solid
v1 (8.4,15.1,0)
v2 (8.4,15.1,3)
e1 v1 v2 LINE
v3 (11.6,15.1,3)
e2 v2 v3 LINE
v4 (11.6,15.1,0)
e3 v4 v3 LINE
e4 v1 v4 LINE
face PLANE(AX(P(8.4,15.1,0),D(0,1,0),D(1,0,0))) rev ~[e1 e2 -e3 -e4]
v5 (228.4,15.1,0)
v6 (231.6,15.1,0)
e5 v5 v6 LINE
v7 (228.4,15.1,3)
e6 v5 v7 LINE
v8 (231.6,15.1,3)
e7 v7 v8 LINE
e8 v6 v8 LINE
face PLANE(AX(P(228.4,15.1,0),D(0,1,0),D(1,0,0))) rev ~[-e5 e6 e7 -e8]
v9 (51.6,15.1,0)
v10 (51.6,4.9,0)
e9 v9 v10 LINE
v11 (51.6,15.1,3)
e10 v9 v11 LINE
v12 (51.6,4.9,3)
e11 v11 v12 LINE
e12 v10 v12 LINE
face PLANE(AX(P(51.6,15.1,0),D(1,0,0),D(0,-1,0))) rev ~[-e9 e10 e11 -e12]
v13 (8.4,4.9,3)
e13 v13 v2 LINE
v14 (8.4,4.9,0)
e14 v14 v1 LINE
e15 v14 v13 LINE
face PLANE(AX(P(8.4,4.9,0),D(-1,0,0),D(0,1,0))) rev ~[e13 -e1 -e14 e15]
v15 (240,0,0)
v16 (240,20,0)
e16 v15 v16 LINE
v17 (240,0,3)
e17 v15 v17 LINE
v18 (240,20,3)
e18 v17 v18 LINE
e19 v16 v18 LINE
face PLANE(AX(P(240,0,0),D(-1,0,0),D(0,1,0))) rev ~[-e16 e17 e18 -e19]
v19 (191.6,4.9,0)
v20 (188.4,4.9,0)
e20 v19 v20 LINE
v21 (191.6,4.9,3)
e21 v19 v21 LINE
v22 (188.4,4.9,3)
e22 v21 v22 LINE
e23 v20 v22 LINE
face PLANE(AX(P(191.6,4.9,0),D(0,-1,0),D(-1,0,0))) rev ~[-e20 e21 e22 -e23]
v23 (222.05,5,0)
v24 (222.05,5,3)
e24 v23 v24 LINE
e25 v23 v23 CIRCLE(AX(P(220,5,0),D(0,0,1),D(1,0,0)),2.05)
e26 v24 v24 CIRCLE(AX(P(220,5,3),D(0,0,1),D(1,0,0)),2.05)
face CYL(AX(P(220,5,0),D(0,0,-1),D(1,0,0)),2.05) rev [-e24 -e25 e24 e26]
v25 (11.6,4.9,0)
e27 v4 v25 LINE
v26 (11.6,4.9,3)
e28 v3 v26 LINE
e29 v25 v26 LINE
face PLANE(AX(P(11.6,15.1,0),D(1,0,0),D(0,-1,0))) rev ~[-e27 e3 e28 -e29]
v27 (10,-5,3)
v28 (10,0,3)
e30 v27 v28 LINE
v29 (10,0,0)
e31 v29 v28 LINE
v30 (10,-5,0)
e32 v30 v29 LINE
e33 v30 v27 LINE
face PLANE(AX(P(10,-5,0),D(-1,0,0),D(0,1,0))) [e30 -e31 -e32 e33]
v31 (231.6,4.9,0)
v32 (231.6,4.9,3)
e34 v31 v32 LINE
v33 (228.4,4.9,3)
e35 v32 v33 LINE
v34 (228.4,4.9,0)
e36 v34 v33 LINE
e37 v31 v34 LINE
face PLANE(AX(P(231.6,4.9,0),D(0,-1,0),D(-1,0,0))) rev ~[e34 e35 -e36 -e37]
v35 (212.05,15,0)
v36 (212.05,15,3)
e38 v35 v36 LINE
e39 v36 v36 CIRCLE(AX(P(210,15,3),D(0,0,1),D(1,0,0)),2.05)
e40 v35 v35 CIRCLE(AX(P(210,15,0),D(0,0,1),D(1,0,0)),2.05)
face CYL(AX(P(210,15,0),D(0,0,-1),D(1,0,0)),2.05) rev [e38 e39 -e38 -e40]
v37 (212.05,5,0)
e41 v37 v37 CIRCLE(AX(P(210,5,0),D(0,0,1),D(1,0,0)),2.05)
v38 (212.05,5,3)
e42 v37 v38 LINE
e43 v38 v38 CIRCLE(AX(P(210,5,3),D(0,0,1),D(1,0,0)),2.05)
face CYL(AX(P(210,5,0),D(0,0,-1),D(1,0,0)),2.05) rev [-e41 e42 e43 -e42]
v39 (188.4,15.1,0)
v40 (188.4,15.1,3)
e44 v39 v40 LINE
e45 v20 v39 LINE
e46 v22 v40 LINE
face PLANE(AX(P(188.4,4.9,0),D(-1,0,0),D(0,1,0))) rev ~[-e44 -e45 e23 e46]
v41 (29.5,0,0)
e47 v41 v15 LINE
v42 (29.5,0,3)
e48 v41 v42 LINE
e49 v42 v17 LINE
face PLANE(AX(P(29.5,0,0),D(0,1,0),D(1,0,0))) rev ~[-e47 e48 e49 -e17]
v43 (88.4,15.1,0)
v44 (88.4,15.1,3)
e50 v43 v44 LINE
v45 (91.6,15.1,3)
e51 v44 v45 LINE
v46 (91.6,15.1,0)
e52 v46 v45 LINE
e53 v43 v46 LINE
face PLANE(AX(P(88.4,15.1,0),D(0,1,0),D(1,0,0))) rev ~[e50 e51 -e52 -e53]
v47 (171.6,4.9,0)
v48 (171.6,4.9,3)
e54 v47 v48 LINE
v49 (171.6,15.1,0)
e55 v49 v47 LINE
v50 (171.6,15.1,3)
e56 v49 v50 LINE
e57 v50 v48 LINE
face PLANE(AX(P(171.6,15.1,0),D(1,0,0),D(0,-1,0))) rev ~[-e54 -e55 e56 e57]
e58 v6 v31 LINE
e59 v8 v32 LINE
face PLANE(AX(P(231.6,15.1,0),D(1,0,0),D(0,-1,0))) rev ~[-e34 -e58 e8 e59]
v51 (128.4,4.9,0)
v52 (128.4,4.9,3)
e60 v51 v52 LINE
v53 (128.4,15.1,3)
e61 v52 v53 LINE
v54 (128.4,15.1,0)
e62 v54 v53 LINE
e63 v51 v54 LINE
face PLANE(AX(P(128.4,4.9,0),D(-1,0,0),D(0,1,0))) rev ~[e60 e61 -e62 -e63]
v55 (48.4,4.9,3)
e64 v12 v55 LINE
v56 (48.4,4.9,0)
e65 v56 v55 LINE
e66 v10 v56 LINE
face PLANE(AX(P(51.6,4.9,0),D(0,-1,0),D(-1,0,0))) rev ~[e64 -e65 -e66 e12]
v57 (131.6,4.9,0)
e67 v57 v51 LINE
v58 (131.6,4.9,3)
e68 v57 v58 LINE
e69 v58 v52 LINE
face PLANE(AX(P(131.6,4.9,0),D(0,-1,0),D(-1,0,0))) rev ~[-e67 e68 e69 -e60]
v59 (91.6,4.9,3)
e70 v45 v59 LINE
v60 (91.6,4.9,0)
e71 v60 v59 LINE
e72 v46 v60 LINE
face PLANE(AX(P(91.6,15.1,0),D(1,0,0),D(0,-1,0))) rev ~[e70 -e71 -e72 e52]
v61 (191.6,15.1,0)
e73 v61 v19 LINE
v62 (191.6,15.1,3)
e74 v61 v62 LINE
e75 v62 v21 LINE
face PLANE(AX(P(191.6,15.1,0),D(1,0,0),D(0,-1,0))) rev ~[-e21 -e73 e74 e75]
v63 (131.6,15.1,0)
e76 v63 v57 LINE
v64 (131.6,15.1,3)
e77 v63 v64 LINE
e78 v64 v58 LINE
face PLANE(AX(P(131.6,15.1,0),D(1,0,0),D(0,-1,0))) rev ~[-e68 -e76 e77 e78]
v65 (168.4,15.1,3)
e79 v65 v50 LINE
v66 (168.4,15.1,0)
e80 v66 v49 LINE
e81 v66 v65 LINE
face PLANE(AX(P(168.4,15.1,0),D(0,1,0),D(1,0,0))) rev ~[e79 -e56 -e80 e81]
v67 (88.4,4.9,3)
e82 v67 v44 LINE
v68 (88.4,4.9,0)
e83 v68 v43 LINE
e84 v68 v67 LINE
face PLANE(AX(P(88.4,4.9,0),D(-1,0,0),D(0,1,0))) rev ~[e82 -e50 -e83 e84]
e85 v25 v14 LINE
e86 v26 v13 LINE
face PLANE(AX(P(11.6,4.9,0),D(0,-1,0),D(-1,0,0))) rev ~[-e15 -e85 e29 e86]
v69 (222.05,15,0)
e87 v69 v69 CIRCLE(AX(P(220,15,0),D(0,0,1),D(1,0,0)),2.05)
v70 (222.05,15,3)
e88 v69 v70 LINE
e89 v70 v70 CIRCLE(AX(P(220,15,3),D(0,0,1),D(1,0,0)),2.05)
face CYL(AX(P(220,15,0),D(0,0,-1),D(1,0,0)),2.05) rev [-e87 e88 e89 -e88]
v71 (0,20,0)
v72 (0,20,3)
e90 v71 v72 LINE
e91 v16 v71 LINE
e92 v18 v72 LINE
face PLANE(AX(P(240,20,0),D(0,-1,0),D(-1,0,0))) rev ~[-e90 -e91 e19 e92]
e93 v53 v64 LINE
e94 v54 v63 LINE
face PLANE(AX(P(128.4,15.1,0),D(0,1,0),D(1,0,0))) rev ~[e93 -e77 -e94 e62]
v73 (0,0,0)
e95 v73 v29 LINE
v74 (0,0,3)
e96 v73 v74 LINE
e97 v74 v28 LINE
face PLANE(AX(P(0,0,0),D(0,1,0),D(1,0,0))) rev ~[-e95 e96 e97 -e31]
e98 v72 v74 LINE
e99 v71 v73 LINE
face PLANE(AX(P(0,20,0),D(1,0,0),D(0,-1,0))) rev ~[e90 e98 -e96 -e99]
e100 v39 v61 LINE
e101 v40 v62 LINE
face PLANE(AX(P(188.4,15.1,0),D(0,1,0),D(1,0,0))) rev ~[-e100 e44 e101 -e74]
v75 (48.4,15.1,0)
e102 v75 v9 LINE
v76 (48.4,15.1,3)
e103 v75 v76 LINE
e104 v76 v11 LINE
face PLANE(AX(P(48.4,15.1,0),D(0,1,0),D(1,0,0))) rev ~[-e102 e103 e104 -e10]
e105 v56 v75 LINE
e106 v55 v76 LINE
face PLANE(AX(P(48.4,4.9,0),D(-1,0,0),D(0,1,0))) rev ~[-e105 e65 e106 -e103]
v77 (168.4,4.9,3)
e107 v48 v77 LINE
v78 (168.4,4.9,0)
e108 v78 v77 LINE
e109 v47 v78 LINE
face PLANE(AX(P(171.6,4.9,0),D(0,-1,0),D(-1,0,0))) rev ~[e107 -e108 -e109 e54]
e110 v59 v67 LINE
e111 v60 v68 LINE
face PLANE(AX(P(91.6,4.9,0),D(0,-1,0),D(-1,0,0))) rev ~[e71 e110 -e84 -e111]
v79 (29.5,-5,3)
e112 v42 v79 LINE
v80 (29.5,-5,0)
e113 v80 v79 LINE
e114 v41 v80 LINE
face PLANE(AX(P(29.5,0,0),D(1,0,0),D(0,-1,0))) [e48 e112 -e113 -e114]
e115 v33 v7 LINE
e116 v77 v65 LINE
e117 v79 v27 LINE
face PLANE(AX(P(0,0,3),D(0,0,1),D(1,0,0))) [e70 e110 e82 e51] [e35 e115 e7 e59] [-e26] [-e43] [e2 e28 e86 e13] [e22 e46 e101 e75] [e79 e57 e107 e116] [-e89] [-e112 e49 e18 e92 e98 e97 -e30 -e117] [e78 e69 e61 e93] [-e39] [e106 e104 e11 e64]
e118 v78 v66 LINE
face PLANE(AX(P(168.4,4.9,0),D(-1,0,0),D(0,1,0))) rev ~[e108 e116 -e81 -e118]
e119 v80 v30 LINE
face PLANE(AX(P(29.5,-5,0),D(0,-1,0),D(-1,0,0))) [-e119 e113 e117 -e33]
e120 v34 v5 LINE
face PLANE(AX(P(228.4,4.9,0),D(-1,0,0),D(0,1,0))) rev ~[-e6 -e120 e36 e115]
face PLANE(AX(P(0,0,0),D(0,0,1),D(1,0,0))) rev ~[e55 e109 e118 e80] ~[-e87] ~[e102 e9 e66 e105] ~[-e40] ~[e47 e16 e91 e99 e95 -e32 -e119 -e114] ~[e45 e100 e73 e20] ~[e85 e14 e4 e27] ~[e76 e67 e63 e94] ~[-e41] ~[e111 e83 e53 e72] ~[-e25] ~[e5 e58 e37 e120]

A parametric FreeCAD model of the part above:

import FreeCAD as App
import Part
import Sketcher


def add_polygon(sketch, points):
    """Adds a closed chain of lines whose ends are joined by coincident constraints."""
    first, n = sketch.GeometryCount, len(points)
    for a, b in zip(points, points[1:] + points[:1]):
        sketch.addGeometry(Part.LineSegment(App.Vector(*a, 0), App.Vector(*b, 0)), False)
    for i in range(n):
        sketch.addConstraint(Sketcher.Constraint("Coincident", first + i, 2, first + (i + 1) % n, 1))

doc = App.newDocument("Part")
body = doc.addObject("PartDesign::Body", "Body")

sketch1 = body.newObject("Sketcher::SketchObject", "Sketch")
sketch1.AttachmentSupport = (doc.getObject("XY_Plane"), [""])
sketch1.MapMode = "FlatFace"
add_polygon(sketch1, [(0, 20), (0, 0), (10, 0), (10, -5), (29.5, -5), (29.5, 0), (240, 0), (240, 20)])
sketch1.addGeometry(Part.Circle(App.Vector(210, 5, 0), App.Vector(0, 0, 1), 2), False)
sketch1.addGeometry(Part.Circle(App.Vector(220, 5, 0), App.Vector(0, 0, 1), 2), False)
add_polygon(sketch1, [(8.4, 4.9), (8.4, 15.1), (11.6, 15.1), (11.6, 4.9)])
add_polygon(sketch1, [(48.4, 4.9), (48.4, 15.1), (51.6, 15.1), (51.6, 4.9)])
add_polygon(sketch1, [(88.4, 4.9), (88.4, 15.1), (91.6, 15.1), (91.6, 4.9)])
add_polygon(sketch1, [(128.4, 4.9), (128.4, 15.1), (131.6, 15.1), (131.6, 4.9)])
add_polygon(sketch1, [(168.4, 4.9), (168.4, 15.1), (171.6, 15.1), (171.6, 4.9)])
add_polygon(sketch1, [(188.4, 4.9), (188.4, 15.1), (191.6, 15.1), (191.6, 4.9)])
add_polygon(sketch1, [(228.4, 4.9), (228.4, 15.1), (231.6, 15.1), (231.6, 4.9)])
sketch1.addGeometry(Part.Circle(App.Vector(210, 15, 0), App.Vector(0, 0, 1), 2), False)
sketch1.addGeometry(Part.Circle(App.Vector(220, 15, 0), App.Vector(0, 0, 1), 2), False)
sketch1.addConstraint([
    Sketcher.Constraint("Vertical", 0),
    Sketcher.Constraint("Horizontal", 1),
    Sketcher.Constraint("Vertical", 2),
    Sketcher.Constraint("Horizontal", 3),
    Sketcher.Constraint("Vertical", 4),
    Sketcher.Constraint("Horizontal", 5),
    Sketcher.Constraint("Vertical", 6),
    Sketcher.Constraint("Horizontal", 7),
    Sketcher.Constraint("Vertical", 10),
    Sketcher.Constraint("Horizontal", 11),
    Sketcher.Constraint("Vertical", 12),
    Sketcher.Constraint("Horizontal", 13),
    Sketcher.Constraint("Vertical", 14),
    Sketcher.Constraint("Horizontal", 15),
    Sketcher.Constraint("Vertical", 16),
    Sketcher.Constraint("Horizontal", 17),
    Sketcher.Constraint("Vertical", 18),
    Sketcher.Constraint("Horizontal", 19),
    Sketcher.Constraint("Vertical", 20),
    Sketcher.Constraint("Horizontal", 21),
    Sketcher.Constraint("Vertical", 22),
    Sketcher.Constraint("Horizontal", 23),
    Sketcher.Constraint("Vertical", 24),
    Sketcher.Constraint("Horizontal", 25),
    Sketcher.Constraint("Vertical", 26),
    Sketcher.Constraint("Horizontal", 27),
    Sketcher.Constraint("Vertical", 28),
    Sketcher.Constraint("Horizontal", 29),
    Sketcher.Constraint("Vertical", 30),
    Sketcher.Constraint("Horizontal", 31),
    Sketcher.Constraint("Vertical", 32),
    Sketcher.Constraint("Horizontal", 33),
    Sketcher.Constraint("Vertical", 34),
    Sketcher.Constraint("Horizontal", 35),
    Sketcher.Constraint("Vertical", 36),
    Sketcher.Constraint("Horizontal", 37),
    Sketcher.Constraint("Coincident", 0, 2, -1, 1),
    Sketcher.Constraint("Equal", 8, 9),
    Sketcher.Constraint("Equal", 9, 38),
    Sketcher.Constraint("Equal", 38, 39),
    Sketcher.Constraint("PointOnObject", 4, 2, -1),
    Sketcher.Constraint("Horizontal", 8, 3, 9, 3),
    Sketcher.Constraint("Horizontal", 38, 3, 39, 3),
    Sketcher.Constraint("Horizontal", 11, 2, 14, 2),
    Sketcher.Constraint("Horizontal", 13, 2, 16, 2),
    Sketcher.Constraint("Horizontal", 15, 2, 18, 2),
    Sketcher.Constraint("Horizontal", 17, 2, 20, 2),
    Sketcher.Constraint("Horizontal", 19, 2, 22, 2),
    Sketcher.Constraint("Horizontal", 21, 2, 24, 2),
    Sketcher.Constraint("Horizontal", 23, 2, 26, 2),
    Sketcher.Constraint("Horizontal", 25, 2, 28, 2),
    Sketcher.Constraint("Horizontal", 27, 2, 30, 2),
    Sketcher.Constraint("Horizontal", 29, 2, 32, 2),
    Sketcher.Constraint("Horizontal", 31, 2, 34, 2),
    Sketcher.Constraint("Horizontal", 33, 2, 36, 2),
    Sketcher.Constraint("Vertical", 8, 3, 38, 3),
    Sketcher.Constraint("Vertical", 9, 3, 39, 3),
    Sketcher.Constraint("Equal", 13, 15),
    Sketcher.Constraint("Equal", 17, 19),
    Sketcher.Constraint("Equal", 21, 23),
    Sketcher.Constraint("Equal", 25, 27),
    Sketcher.Constraint("Equal", 29, 31),
    Sketcher.Constraint("Equal", 33, 35),
    Sketcher.Constraint("Diameter", 8, 4.1),
    Sketcher.Constraint("DistanceX", 1, 1, 1, 2, 10.0),
    Sketcher.Constraint("DistanceX", 7, 2, 7, 1, 240.0),
    Sketcher.Constraint("DistanceY", 0, 2, 0, 1, 20.0),
    Sketcher.Constraint("DistanceY", 2, 2, 2, 1, 5.0),
    Sketcher.Constraint("DistanceX", 3, 1, 3, 2, 19.5),
    Sketcher.Constraint("DistanceX", 11, 1, 11, 2, 3.2),
    Sketcher.Constraint("DistanceY", 10, 1, 10, 2, 10.2),
    Sketcher.Constraint("DistanceY", -1, 1, 8, 3, 5.0),
    Sketcher.Constraint("DistanceX", 8, 3, 9, 3, 10.0),
    Sketcher.Constraint("DistanceY", 8, 3, 38, 3, 10.0),
    Sketcher.Constraint("DistanceX", 9, 3, 5, 2, 20.0),
    Sketcher.Constraint("DistanceX", 10, 2, 14, 2, 40.0),
    Sketcher.Constraint("DistanceX", 14, 2, 18, 2, 40.0),
    Sketcher.Constraint("DistanceX", 18, 2, 22, 2, 40.0),
    Sketcher.Constraint("DistanceX", 22, 2, 26, 2, 40.0),
    Sketcher.Constraint("DistanceX", 26, 2, 30, 2, 20.0),
    Sketcher.Constraint("DistanceX", -1, 1, 10, 2, 8.4),
    Sketcher.Constraint("DistanceY", -1, 1, 10, 2, 15.1),
    Sketcher.Constraint("DistanceX", -1, 1, 34, 2, 228.4),
])
pad1 = body.newObject("PartDesign::Pad", "Pad")
pad1.Profile = sketch1
pad1.Length = 3

doc.recompute()
